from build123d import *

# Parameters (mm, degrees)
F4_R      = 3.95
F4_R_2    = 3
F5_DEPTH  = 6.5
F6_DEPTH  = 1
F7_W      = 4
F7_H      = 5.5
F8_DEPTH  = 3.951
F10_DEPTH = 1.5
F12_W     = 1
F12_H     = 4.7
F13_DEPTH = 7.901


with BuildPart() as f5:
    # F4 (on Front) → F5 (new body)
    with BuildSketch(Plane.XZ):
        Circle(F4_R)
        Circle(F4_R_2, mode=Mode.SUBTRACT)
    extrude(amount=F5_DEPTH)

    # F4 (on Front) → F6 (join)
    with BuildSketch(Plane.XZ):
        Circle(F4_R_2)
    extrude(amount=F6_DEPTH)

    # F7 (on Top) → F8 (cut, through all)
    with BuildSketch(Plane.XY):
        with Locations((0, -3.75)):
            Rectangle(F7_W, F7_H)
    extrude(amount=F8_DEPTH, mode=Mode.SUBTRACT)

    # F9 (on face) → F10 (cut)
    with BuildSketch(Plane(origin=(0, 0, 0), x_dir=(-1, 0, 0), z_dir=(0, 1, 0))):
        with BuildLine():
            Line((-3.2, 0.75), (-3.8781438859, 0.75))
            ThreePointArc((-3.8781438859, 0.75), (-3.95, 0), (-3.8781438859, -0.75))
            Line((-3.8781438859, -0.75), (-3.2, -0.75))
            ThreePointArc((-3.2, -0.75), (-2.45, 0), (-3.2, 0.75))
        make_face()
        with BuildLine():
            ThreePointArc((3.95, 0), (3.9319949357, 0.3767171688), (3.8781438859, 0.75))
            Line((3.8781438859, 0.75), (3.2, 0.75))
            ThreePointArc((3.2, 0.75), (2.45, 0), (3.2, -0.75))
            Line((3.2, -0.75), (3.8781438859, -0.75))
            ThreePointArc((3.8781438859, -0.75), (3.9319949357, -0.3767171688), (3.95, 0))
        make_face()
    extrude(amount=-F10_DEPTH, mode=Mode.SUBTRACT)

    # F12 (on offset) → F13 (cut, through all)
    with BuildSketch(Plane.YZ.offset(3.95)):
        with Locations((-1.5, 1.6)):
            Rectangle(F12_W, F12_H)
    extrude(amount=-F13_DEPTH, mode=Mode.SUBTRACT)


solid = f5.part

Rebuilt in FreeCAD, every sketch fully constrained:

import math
import FreeCAD as App
import Part
import Sketcher

V = App.Vector


def add_polygon(sketch, points):
    """Adds a closed chain of lines whose ends are joined by coincident constraints."""
    first, n = sketch.GeometryCount, len(points)
    for a, b in zip(points, points[1:] + points[:1]):
        sketch.addGeometry(Part.LineSegment(App.Vector(*a, 0), App.Vector(*b, 0)), False)
    for i in range(n):
        sketch.addConstraint(Sketcher.Constraint("Coincident", first + i, 2, first + (i + 1) % n, 1))

doc = App.newDocument("Part")
body = doc.addObject("PartDesign::Body", "Body")

# Sketch on XZ plane
sketch1 = body.newObject("Sketcher::SketchObject", "Sketch")
sketch1.AttachmentSupport = (doc.getObject("XZ_Plane"), [""])
sketch1.MapMode = "FlatFace"
sketch1.addGeometry(Part.Circle(V(0, 0, 0), V(0, 0, 1), 4), False)
sketch1.addGeometry(Part.Circle(V(0, 0, 0), V(0, 0, 1), 3), False)
sketch1.addConstraint(Sketcher.Constraint("Coincident", 0, 3, -1, 1))
sketch1.addConstraint(Sketcher.Constraint("Coincident", 1, 3, -1, 1))
sketch1.addConstraint(Sketcher.Constraint("Diameter", 1, 6.0))
sketch1.addConstraint(Sketcher.Constraint("Diameter", 0, 7.9))
pad1 = body.newObject("PartDesign::Pad", "Pad")
pad1.Profile = sketch1
pad1.Length = 6.5

# Sketch on XZ plane
sketch2 = body.newObject("Sketcher::SketchObject", "Sketch001")
sketch2.AttachmentSupport = (doc.getObject("XZ_Plane"), [""])
sketch2.MapMode = "FlatFace"
sketch2.addGeometry(Part.Circle(V(0, 0, 0), V(0, 0, 1), 3), False)
sketch2.addConstraint(Sketcher.Constraint("Coincident", 0, 3, -1, 1))
sketch2.addConstraint(Sketcher.Constraint("Diameter", 0, 6.0))
pad2 = body.newObject("PartDesign::Pad", "Pad001")
pad2.Profile = sketch2
pad2.Length = 1

# Sketch on XY plane
sketch3 = body.newObject("Sketcher::SketchObject", "Sketch002")
sketch3.AttachmentSupport = (doc.getObject("XY_Plane"), [""])
sketch3.MapMode = "FlatFace"
add_polygon(sketch3, [(-2, -1), (-2, -6.5), (2, -6.5), (2, -1)])  # lines 0-3
sketch3.addConstraint(Sketcher.Constraint("Vertical", 0))
sketch3.addConstraint(Sketcher.Constraint("Horizontal", 1))
sketch3.addConstraint(Sketcher.Constraint("Vertical", 2))
sketch3.addConstraint(Sketcher.Constraint("Horizontal", 3))
sketch3.addConstraint(Sketcher.Constraint("DistanceX", 1, 1, 1, 2, 4.0))
sketch3.addConstraint(Sketcher.Constraint("DistanceY", 0, 2, 0, 1, 5.5))
sketch3.addConstraint(Sketcher.Constraint("DistanceX", 0, 2, -1, 1, 2.0))
sketch3.addConstraint(Sketcher.Constraint("DistanceY", 2, 2, -1, 1, 1.0))
pocket1 = body.newObject("PartDesign::Pocket", "Pocket")
pocket1.Profile = sketch3
pocket1.Type = "ThroughAll"
pocket1.Reversed = True

# Sketch on XZ plane
sketch4 = body.newObject("Sketcher::SketchObject", "Sketch003")
sketch4.AttachmentSupport = (doc.getObject("XZ_Plane"), [""])
sketch4.MapMode = "FlatFace"
sketch4.addGeometry(Part.LineSegment(V(3.2, 0.8, 0), V(3.9, 0.8, 0)), False)
sketch4.addGeometry(Part.ArcOfCircle(Part.Circle(V(0, 0, 0), V(0, 0, 1), 3.9), math.radians(-11), math.radians(11)), False)
sketch4.addGeometry(Part.LineSegment(V(3.9, -0.8, 0), V(3.2, -0.8, 0)), False)
sketch4.addGeometry(Part.ArcOfCircle(Part.Circle(V(3.2, 0, 0), V(0, 0, 1), 0.8), math.radians(90), math.radians(270)), False)
sketch4.addGeometry(Part.ArcOfCircle(Part.Circle(V(0, 0, 0), V(0, 0, 1), 4), math.radians(169.05), math.radians(180)), False)
sketch4.addGeometry(Part.LineSegment(V(-3.9, 0.8, 0), V(-3.2, 0.8, 0)), False)
sketch4.addGeometry(Part.ArcOfCircle(Part.Circle(V(-3.2, 0, 0), V(0, 0, 1), 0.8), math.radians(-90), math.radians(90)), False)
sketch4.addGeometry(Part.LineSegment(V(-3.2, -0.8, 0), V(-3.9, -0.8, 0)), False)
sketch4.addGeometry(Part.ArcOfCircle(Part.Circle(V(0, 0, 0), V(0, 0, 1), 4), math.radians(-180), math.radians(-169.05)), False)
sketch4.addConstraint(Sketcher.Constraint("Coincident", 0, 2, 1, 2))
sketch4.addConstraint(Sketcher.Constraint("Coincident", 1, 1, 2, 1))
sketch4.addConstraint(Sketcher.Constraint("Tangent", 2, 2, 3, 2))
sketch4.addConstraint(Sketcher.Constraint("Tangent", 3, 1, 0, 1))
sketch4.addConstraint(Sketcher.Constraint("Coincident", 4, 1, 5, 1))
sketch4.addConstraint(Sketcher.Constraint("Tangent", 5, 2, 6, 2))
sketch4.addConstraint(Sketcher.Constraint("Tangent", 6, 1, 7, 1))
sketch4.addConstraint(Sketcher.Constraint("Coincident", 7, 2, 8, 2))
sketch4.addConstraint(Sketcher.Constraint("Tangent", 8, 1, 4, 2))
sketch4.addConstraint(Sketcher.Constraint("Horizontal", 0))
sketch4.addConstraint(Sketcher.Constraint("Horizontal", 2))
sketch4.addConstraint(Sketcher.Constraint("Horizontal", 5))
sketch4.addConstraint(Sketcher.Constraint("Horizontal", 7))
sketch4.addConstraint(Sketcher.Constraint("Coincident", 1, 3, -1, 1))
sketch4.addConstraint(Sketcher.Constraint("Coincident", 4, 3, -1, 1))
sketch4.addConstraint(Sketcher.Constraint("Equal", 1, 4))
sketch4.addConstraint(Sketcher.Constraint("Equal", 3, 6))
sketch4.addConstraint(Sketcher.Constraint("Equal", 4, 8))
sketch4.addConstraint(Sketcher.Constraint("Symmetric", 3, 3, 6, 3, -1, 1))
sketch4.addConstraint(Sketcher.Constraint("PointOnObject", 3, 3, -1))
sketch4.addConstraint(Sketcher.Constraint("PointOnObject", 8, 1, -1))
sketch4.addConstraint(Sketcher.Constraint("Radius", 1, 3.95))
sketch4.addConstraint(Sketcher.Constraint("Radius", 3, 0.75))
sketch4.addConstraint(Sketcher.Constraint("DistanceX", -1, 1, 3, 3, 3.2))
pocket2 = body.newObject("PartDesign::Pocket", "Pocket001")
pocket2.Profile = sketch4
pocket2.Length = 1.5
pocket2.Reversed = True

# Sketch on YZ plane
sketch5 = body.newObject("Sketcher::SketchObject", "Sketch004")
sketch5.AttachmentSupport = (doc.getObject("YZ_Plane"), [""])
sketch5.MapMode = "FlatFace"
sketch5.AttachmentOffset = App.Placement(V(0, 0, 3.95), App.Rotation())
add_polygon(sketch5, [(-2, 4), (-2, -0.8), (-1, -0.8), (-1, 4)])  # lines 0-3
sketch5.addConstraint(Sketcher.Constraint("Vertical", 0))
sketch5.addConstraint(Sketcher.Constraint("Horizontal", 1))
sketch5.addConstraint(Sketcher.Constraint("Vertical", 2))
sketch5.addConstraint(Sketcher.Constraint("Horizontal", 3))
sketch5.addConstraint(Sketcher.Constraint("DistanceX", 1, 1, 1, 2, 1.0))
sketch5.addConstraint(Sketcher.Constraint("DistanceY", 0, 2, 0, 1, 4.7))
sketch5.addConstraint(Sketcher.Constraint("DistanceX", 0, 2, -1, 1, 2.0))
sketch5.addConstraint(Sketcher.Constraint("DistanceY", 0, 2, -1, 1, 0.75))
pocket3 = body.newObject("PartDesign::Pocket", "Pocket002")
pocket3.Profile = sketch5
pocket3.Type = "ThroughAll"

doc.recompute()
